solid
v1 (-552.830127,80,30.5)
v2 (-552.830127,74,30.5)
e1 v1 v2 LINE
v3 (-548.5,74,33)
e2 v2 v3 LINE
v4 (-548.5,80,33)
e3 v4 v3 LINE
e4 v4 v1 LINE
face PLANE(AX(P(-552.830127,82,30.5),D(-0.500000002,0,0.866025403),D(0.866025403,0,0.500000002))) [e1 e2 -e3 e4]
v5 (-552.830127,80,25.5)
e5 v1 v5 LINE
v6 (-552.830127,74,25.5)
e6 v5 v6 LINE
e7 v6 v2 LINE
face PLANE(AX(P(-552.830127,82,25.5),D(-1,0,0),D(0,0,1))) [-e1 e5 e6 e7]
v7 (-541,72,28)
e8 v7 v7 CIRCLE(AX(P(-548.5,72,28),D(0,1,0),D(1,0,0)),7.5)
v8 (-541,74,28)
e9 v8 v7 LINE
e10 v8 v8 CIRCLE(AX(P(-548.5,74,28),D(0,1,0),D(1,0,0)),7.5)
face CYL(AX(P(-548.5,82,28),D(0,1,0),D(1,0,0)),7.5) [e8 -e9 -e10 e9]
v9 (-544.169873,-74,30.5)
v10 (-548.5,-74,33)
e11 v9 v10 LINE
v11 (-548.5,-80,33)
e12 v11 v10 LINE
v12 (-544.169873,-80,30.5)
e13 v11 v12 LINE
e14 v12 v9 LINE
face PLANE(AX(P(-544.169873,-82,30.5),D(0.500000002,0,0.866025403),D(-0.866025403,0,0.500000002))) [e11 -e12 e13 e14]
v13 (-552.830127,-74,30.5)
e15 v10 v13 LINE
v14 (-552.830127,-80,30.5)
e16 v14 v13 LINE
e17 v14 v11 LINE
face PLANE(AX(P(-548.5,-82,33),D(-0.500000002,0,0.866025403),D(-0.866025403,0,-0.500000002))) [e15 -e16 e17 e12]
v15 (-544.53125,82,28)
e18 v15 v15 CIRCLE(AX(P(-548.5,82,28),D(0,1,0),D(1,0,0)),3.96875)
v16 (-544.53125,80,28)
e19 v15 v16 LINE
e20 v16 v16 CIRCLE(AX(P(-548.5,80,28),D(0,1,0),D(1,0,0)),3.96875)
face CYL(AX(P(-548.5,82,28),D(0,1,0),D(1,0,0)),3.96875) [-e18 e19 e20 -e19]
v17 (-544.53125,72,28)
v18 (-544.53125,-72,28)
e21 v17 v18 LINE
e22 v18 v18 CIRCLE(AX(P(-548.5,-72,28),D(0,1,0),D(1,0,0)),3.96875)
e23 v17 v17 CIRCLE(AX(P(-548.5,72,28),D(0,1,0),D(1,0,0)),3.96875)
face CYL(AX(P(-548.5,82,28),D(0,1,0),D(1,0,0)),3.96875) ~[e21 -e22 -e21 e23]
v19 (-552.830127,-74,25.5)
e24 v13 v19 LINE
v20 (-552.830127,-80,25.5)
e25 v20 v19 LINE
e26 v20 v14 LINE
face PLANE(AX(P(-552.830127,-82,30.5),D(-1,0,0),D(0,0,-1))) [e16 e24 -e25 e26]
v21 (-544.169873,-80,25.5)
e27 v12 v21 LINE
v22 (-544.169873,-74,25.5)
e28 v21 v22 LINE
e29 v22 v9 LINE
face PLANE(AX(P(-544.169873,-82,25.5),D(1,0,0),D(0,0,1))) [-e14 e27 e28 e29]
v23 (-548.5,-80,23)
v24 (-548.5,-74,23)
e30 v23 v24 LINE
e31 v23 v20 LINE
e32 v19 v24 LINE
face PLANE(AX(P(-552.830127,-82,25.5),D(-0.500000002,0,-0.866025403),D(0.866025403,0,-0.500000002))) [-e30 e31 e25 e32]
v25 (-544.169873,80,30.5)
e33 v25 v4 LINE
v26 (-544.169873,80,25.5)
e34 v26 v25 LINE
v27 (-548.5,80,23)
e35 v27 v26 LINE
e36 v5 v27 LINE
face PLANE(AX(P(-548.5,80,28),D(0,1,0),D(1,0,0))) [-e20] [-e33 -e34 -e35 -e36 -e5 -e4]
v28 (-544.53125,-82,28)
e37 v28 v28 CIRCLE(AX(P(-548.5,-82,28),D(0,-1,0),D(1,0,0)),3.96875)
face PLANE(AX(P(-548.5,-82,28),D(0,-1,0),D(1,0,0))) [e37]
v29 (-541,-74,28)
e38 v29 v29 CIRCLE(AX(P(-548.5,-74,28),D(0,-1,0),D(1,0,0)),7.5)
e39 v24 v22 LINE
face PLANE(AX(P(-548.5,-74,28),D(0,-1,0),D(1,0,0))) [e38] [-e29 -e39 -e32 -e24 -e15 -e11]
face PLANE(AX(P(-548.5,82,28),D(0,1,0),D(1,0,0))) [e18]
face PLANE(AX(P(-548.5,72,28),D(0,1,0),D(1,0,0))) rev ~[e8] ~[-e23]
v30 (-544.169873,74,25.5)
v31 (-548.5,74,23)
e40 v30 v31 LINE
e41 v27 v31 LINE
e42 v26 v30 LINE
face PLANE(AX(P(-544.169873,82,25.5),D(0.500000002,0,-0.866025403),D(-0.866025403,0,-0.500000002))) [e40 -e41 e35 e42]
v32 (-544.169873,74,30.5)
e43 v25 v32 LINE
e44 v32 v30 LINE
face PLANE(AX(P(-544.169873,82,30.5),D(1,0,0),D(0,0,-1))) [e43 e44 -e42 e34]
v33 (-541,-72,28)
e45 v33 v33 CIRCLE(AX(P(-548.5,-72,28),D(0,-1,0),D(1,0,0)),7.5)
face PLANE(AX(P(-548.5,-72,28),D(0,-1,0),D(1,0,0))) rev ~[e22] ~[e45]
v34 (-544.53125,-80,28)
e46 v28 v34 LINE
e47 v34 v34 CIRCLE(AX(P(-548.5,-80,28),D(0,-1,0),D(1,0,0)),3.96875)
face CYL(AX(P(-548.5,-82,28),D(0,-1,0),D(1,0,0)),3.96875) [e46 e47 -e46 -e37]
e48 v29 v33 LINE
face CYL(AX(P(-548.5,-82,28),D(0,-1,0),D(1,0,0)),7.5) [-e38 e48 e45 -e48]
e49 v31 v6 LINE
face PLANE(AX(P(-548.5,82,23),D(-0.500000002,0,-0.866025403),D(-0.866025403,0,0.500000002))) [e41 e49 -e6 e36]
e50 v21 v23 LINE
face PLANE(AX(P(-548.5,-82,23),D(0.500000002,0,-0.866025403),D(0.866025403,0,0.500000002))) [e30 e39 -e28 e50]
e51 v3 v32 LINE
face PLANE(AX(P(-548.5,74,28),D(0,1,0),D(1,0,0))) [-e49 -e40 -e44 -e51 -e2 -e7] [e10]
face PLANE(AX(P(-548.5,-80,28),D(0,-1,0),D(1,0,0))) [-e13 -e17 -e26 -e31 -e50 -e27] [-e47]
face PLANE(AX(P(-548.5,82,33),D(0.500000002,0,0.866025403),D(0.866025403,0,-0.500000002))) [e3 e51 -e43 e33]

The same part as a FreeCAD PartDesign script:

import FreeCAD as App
import Part
import Sketcher
Q = App.Units.Quantity


def add_polygon(sketch, points):
    """Adds a closed chain of lines whose ends are joined by coincident constraints."""
    first, n = sketch.GeometryCount, len(points)
    for a, b in zip(points, points[1:] + points[:1]):
        sketch.addGeometry(Part.LineSegment(App.Vector(*a, 0), App.Vector(*b, 0)), False)
    for i in range(n):
        sketch.addConstraint(Sketcher.Constraint("Coincident", first + i, 2, first + (i + 1) % n, 1))

doc = App.newDocument("Part")
params = doc.addObject("Spreadsheet::Sheet", "Params")
for row, (alias, value) in enumerate([
    ("pad1_length", "164 mm"),
    ("sketch2_diameter", "15 mm"),
    ("pad2_length", "10 mm"),
    ("sketch3_diameter", "15 mm"),
    ("sketch3_height", "5 mm"),
    ("sketch3_length", "5 mm"),
    ("pocket1_length", "8 mm"),
    ("sketch4_diameter", "15 mm"),
    ("pocket2_length", "2 mm"),
    ("sketch5_diameter", "15 mm"),
    ("pad3_length", "10 mm"),
    ("sketch6_diameter", "15 mm"),
    ("sketch6_height", "5 mm"),
    ("sketch6_length", "5 mm"),
    ("pocket3_length", "8 mm"),
    ("sketch7_diameter", "15 mm"),
    ("pocket4_length", "2 mm"),
], start=1):
    params.set(f"A{row}", alias)
    params.set(f"B{row}", "=" + value)
    params.setAlias(f"B{row}", alias)

body = doc.addObject("PartDesign::Body", "Body")

sketch1 = doc.addObject("Sketcher::SketchObject", "Sketch")
body.addObject(sketch1)
sketch1.AttachmentSupport = (doc.XZ_Plane, [""])
sketch1.MapMode = "FlatFace"
sketch1.AttachmentOffset = App.Placement(App.Vector(0, 0, -82), App.Rotation())
sketch1.addGeometry(Part.Circle(App.Vector(500, 56, 0), App.Vector(0, 0, 1), 4), False)
sketch1.addConstraint([
    Sketcher.Constraint("DistanceX", -1, 1, 0, 3, 500.0),
    Sketcher.Constraint("DistanceY", -1, 1, 0, 3, 56.0),
    Sketcher.Constraint("Diameter", 0, 7.9375),
])
pad1 = doc.addObject("PartDesign::Pad", "Pad")
body.addObject(pad1)
pad1.Profile = sketch1
pad1.setExpression("Length", "Params.pad1_length")

sketch2 = doc.addObject("Sketcher::SketchObject", "Sketch001")
body.addObject(sketch2)
sketch2.AttachmentSupport = (doc.XZ_Plane, [""])
sketch2.MapMode = "FlatFace"
sketch2.AttachmentOffset = App.Placement(App.Vector(0, 0, -82), App.Rotation())
sketch2.addGeometry(Part.Circle(App.Vector(500, 56, 0), App.Vector(0, 0, 1), 8), False)
sketch2.addConstraint([
    Sketcher.Constraint("Diameter", 0, 15.0),
    Sketcher.Constraint("DistanceX", -1, 1, 0, 3, 500.0),
    Sketcher.Constraint("DistanceY", -1, 1, 0, 3, 56.0),
])
sketch2.setExpression("Constraints[0]", "Params.sketch2_diameter")
pad2 = doc.addObject("PartDesign::Pad", "Pad001")
body.addObject(pad2)
pad2.Profile = sketch2
pad2.setExpression("Length", "Params.pad2_length")

sketch3 = doc.addObject("Sketcher::SketchObject", "Sketch002")
body.addObject(sketch3)
sketch3.AttachmentSupport = (doc.XZ_Plane, [""])
sketch3.MapMode = "FlatFace"
sketch3.AttachmentOffset = App.Placement(App.Vector(0, 0, -82), App.Rotation())
sketch3.addGeometry(Part.Circle(App.Vector(500, 56, 0), App.Vector(0, 0, 1), 7.5), False)
add_polygon(sketch3, [(495.7, 53.5), (500, 51), (504.3, 53.5), (504.3, 58.5), (500, 61), (495.7, 58.5)])
sketch3.addConstraint([
    Sketcher.Constraint("Vertical", 3),
    Sketcher.Constraint("Vertical", 6),
    Sketcher.Constraint("Parallel", 1, 4),
    Sketcher.Constraint("Parallel", 2, 5),
    Sketcher.Constraint("Horizontal", 3, 2, 5, 2),
    Sketcher.Constraint("Horizontal", 2, 2, 6, 2),
    Sketcher.Constraint("Vertical", 0, 3, 1, 2),
    Sketcher.Constraint("Vertical", 1, 2, 4, 2),
    Sketcher.Constraint("Diameter", 0, 15.0),
    Sketcher.Constraint("DistanceY", 3, 1, 3, 2, 5.0),
    Sketcher.Constraint("Angle", 1, Q("-30 deg")),
    Sketcher.Constraint("Distance", 1, 5.0),
    Sketcher.Constraint("DistanceX", -1, 1, 0, 3, 500.0),
    Sketcher.Constraint("DistanceY", -1, 1, 0, 3, 56.0),
    Sketcher.Constraint("DistanceY", -1, 1, 1, 2, 51.0),
])
sketch3.setExpression("Constraints[14]", "Params.sketch3_diameter")
sketch3.setExpression("Constraints[15]", "Params.sketch3_height")
sketch3.setExpression("Constraints[17]", "Params.sketch3_length")
pocket1 = doc.addObject("PartDesign::Pocket", "Pocket")
body.addObject(pocket1)
pocket1.Profile = sketch3
pocket1.setExpression("Length", "Params.pocket1_length")
pocket1.Reversed = True

sketch4 = doc.addObject("Sketcher::SketchObject", "Sketch003")
body.addObject(sketch4)
sketch4.AttachmentSupport = (doc.XZ_Plane, [""])
sketch4.MapMode = "FlatFace"
sketch4.AttachmentOffset = App.Placement(App.Vector(0, 0, -82), App.Rotation())
sketch4.addGeometry([
    Part.Circle(App.Vector(500, 56, 0), App.Vector(0, 0, 1), 7.5),
    Part.Circle(App.Vector(500, 56, 0), App.Vector(0, 0, 1), 4),
], False)
sketch4.addConstraint([
    Sketcher.Constraint("Coincident", 1, 3, 0, 3),
    Sketcher.Constraint("Diameter", 0, 15.0),
    Sketcher.Constraint("DistanceX", -1, 1, 0, 3, 500.0),
    Sketcher.Constraint("DistanceY", -1, 1, 0, 3, 56.0),
    Sketcher.Constraint("Diameter", 1, 7.9375),
])
sketch4.setExpression("Constraints[1]", "Params.sketch4_diameter")
pocket2 = doc.addObject("PartDesign::Pocket", "Pocket001")
body.addObject(pocket2)
pocket2.Profile = sketch4
pocket2.setExpression("Length", "Params.pocket2_length")
pocket2.Reversed = True

sketch5 = doc.addObject("Sketcher::SketchObject", "Sketch004")
body.addObject(sketch5)
sketch5.AttachmentSupport = (doc.XZ_Plane, [""])
sketch5.MapMode = "FlatFace"
sketch5.AttachmentOffset = App.Placement(App.Vector(0, 0, 82), App.Rotation())
sketch5.addGeometry(Part.Circle(App.Vector(500, 56, 0), App.Vector(0, 0, 1), 8), False)
sketch5.addConstraint([
    Sketcher.Constraint("Diameter", 0, 15.0),
    Sketcher.Constraint("DistanceX", -1, 1, 0, 3, 500.0),
    Sketcher.Constraint("DistanceY", -1, 1, 0, 3, 56.0),
])
sketch5.setExpression("Constraints[0]", "Params.sketch5_diameter")
pad3 = doc.addObject("PartDesign::Pad", "Pad002")
body.addObject(pad3)
pad3.Profile = sketch5
pad3.setExpression("Length", "Params.pad3_length")
pad3.Reversed = True

sketch6 = doc.addObject("Sketcher::SketchObject", "Sketch005")
body.addObject(sketch6)
sketch6.AttachmentSupport = (doc.XZ_Plane, [""])
sketch6.MapMode = "FlatFace"
sketch6.AttachmentOffset = App.Placement(App.Vector(0, 0, 82), App.Rotation())
sketch6.addGeometry(Part.Circle(App.Vector(500, 56, 0), App.Vector(0, 0, 1), 7.5), False)
add_polygon(sketch6, [(495.7, 58.5), (500, 61), (504.3, 58.5), (504.3, 53.5), (500, 51), (495.7, 53.5)])
sketch6.addConstraint([
    Sketcher.Constraint("Vertical", 3),
    Sketcher.Constraint("Vertical", 6),
    Sketcher.Constraint("Parallel", 1, 4),
    Sketcher.Constraint("Parallel", 2, 5),
    Sketcher.Constraint("Horizontal", 3, 2, 5, 2),
    Sketcher.Constraint("Horizontal", 2, 2, 6, 2),
    Sketcher.Constraint("Vertical", 0, 3, 1, 2),
    Sketcher.Constraint("Vertical", 1, 2, 4, 2),
    Sketcher.Constraint("Diameter", 0, 15.0),
    Sketcher.Constraint("DistanceY", 3, 2, 3, 1, 5.0),
    Sketcher.Constraint("Angle", 1, Q("30 deg")),
    Sketcher.Constraint("Distance", 1, 5.0),
    Sketcher.Constraint("DistanceX", -1, 1, 0, 3, 500.0),
    Sketcher.Constraint("DistanceY", -1, 1, 0, 3, 56.0),
    Sketcher.Constraint("DistanceY", -1, 1, 1, 2, 61.0),
])
sketch6.setExpression("Constraints[14]", "Params.sketch6_diameter")
sketch6.setExpression("Constraints[15]", "Params.sketch6_height")
sketch6.setExpression("Constraints[17]", "Params.sketch6_length")
pocket3 = doc.addObject("PartDesign::Pocket", "Pocket002")
body.addObject(pocket3)
pocket3.Profile = sketch6
pocket3.setExpression("Length", "Params.pocket3_length")

sketch7 = doc.addObject("Sketcher::SketchObject", "Sketch006")
body.addObject(sketch7)
sketch7.AttachmentSupport = (doc.XZ_Plane, [""])
sketch7.MapMode = "FlatFace"
sketch7.AttachmentOffset = App.Placement(App.Vector(0, 0, 82), App.Rotation())
sketch7.addGeometry([
    Part.Circle(App.Vector(500, 56, 0), App.Vector(0, 0, 1), 7.5),
    Part.Circle(App.Vector(500, 56, 0), App.Vector(0, 0, 1), 4),
], False)
sketch7.addConstraint([
    Sketcher.Constraint("Coincident", 1, 3, 0, 3),
    Sketcher.Constraint("Diameter", 0, 15.0),
    Sketcher.Constraint("DistanceX", -1, 1, 0, 3, 500.0),
    Sketcher.Constraint("DistanceY", -1, 1, 0, 3, 56.0),
    Sketcher.Constraint("Diameter", 1, 7.9375),
])
sketch7.setExpression("Constraints[1]", "Params.sketch7_diameter")
pocket4 = doc.addObject("PartDesign::Pocket", "Pocket003")
body.addObject(pocket4)
pocket4.Profile = sketch7
pocket4.setExpression("Length", "Params.pocket4_length")
body2 = doc.addObject("PartDesign::Body", "Body001")
doc.recompute()

body.Placement = App.Placement(App.Vector(-1048.5, 0, -28), App.Rotation(App.Vector(0, 0, 1), 0))
boolean = doc.addObject("PartDesign::Boolean", "Boolean")
body2.addObject(boolean)
boolean.Type = "Fuse"
boolean.addObjects([body])

doc.recompute()
